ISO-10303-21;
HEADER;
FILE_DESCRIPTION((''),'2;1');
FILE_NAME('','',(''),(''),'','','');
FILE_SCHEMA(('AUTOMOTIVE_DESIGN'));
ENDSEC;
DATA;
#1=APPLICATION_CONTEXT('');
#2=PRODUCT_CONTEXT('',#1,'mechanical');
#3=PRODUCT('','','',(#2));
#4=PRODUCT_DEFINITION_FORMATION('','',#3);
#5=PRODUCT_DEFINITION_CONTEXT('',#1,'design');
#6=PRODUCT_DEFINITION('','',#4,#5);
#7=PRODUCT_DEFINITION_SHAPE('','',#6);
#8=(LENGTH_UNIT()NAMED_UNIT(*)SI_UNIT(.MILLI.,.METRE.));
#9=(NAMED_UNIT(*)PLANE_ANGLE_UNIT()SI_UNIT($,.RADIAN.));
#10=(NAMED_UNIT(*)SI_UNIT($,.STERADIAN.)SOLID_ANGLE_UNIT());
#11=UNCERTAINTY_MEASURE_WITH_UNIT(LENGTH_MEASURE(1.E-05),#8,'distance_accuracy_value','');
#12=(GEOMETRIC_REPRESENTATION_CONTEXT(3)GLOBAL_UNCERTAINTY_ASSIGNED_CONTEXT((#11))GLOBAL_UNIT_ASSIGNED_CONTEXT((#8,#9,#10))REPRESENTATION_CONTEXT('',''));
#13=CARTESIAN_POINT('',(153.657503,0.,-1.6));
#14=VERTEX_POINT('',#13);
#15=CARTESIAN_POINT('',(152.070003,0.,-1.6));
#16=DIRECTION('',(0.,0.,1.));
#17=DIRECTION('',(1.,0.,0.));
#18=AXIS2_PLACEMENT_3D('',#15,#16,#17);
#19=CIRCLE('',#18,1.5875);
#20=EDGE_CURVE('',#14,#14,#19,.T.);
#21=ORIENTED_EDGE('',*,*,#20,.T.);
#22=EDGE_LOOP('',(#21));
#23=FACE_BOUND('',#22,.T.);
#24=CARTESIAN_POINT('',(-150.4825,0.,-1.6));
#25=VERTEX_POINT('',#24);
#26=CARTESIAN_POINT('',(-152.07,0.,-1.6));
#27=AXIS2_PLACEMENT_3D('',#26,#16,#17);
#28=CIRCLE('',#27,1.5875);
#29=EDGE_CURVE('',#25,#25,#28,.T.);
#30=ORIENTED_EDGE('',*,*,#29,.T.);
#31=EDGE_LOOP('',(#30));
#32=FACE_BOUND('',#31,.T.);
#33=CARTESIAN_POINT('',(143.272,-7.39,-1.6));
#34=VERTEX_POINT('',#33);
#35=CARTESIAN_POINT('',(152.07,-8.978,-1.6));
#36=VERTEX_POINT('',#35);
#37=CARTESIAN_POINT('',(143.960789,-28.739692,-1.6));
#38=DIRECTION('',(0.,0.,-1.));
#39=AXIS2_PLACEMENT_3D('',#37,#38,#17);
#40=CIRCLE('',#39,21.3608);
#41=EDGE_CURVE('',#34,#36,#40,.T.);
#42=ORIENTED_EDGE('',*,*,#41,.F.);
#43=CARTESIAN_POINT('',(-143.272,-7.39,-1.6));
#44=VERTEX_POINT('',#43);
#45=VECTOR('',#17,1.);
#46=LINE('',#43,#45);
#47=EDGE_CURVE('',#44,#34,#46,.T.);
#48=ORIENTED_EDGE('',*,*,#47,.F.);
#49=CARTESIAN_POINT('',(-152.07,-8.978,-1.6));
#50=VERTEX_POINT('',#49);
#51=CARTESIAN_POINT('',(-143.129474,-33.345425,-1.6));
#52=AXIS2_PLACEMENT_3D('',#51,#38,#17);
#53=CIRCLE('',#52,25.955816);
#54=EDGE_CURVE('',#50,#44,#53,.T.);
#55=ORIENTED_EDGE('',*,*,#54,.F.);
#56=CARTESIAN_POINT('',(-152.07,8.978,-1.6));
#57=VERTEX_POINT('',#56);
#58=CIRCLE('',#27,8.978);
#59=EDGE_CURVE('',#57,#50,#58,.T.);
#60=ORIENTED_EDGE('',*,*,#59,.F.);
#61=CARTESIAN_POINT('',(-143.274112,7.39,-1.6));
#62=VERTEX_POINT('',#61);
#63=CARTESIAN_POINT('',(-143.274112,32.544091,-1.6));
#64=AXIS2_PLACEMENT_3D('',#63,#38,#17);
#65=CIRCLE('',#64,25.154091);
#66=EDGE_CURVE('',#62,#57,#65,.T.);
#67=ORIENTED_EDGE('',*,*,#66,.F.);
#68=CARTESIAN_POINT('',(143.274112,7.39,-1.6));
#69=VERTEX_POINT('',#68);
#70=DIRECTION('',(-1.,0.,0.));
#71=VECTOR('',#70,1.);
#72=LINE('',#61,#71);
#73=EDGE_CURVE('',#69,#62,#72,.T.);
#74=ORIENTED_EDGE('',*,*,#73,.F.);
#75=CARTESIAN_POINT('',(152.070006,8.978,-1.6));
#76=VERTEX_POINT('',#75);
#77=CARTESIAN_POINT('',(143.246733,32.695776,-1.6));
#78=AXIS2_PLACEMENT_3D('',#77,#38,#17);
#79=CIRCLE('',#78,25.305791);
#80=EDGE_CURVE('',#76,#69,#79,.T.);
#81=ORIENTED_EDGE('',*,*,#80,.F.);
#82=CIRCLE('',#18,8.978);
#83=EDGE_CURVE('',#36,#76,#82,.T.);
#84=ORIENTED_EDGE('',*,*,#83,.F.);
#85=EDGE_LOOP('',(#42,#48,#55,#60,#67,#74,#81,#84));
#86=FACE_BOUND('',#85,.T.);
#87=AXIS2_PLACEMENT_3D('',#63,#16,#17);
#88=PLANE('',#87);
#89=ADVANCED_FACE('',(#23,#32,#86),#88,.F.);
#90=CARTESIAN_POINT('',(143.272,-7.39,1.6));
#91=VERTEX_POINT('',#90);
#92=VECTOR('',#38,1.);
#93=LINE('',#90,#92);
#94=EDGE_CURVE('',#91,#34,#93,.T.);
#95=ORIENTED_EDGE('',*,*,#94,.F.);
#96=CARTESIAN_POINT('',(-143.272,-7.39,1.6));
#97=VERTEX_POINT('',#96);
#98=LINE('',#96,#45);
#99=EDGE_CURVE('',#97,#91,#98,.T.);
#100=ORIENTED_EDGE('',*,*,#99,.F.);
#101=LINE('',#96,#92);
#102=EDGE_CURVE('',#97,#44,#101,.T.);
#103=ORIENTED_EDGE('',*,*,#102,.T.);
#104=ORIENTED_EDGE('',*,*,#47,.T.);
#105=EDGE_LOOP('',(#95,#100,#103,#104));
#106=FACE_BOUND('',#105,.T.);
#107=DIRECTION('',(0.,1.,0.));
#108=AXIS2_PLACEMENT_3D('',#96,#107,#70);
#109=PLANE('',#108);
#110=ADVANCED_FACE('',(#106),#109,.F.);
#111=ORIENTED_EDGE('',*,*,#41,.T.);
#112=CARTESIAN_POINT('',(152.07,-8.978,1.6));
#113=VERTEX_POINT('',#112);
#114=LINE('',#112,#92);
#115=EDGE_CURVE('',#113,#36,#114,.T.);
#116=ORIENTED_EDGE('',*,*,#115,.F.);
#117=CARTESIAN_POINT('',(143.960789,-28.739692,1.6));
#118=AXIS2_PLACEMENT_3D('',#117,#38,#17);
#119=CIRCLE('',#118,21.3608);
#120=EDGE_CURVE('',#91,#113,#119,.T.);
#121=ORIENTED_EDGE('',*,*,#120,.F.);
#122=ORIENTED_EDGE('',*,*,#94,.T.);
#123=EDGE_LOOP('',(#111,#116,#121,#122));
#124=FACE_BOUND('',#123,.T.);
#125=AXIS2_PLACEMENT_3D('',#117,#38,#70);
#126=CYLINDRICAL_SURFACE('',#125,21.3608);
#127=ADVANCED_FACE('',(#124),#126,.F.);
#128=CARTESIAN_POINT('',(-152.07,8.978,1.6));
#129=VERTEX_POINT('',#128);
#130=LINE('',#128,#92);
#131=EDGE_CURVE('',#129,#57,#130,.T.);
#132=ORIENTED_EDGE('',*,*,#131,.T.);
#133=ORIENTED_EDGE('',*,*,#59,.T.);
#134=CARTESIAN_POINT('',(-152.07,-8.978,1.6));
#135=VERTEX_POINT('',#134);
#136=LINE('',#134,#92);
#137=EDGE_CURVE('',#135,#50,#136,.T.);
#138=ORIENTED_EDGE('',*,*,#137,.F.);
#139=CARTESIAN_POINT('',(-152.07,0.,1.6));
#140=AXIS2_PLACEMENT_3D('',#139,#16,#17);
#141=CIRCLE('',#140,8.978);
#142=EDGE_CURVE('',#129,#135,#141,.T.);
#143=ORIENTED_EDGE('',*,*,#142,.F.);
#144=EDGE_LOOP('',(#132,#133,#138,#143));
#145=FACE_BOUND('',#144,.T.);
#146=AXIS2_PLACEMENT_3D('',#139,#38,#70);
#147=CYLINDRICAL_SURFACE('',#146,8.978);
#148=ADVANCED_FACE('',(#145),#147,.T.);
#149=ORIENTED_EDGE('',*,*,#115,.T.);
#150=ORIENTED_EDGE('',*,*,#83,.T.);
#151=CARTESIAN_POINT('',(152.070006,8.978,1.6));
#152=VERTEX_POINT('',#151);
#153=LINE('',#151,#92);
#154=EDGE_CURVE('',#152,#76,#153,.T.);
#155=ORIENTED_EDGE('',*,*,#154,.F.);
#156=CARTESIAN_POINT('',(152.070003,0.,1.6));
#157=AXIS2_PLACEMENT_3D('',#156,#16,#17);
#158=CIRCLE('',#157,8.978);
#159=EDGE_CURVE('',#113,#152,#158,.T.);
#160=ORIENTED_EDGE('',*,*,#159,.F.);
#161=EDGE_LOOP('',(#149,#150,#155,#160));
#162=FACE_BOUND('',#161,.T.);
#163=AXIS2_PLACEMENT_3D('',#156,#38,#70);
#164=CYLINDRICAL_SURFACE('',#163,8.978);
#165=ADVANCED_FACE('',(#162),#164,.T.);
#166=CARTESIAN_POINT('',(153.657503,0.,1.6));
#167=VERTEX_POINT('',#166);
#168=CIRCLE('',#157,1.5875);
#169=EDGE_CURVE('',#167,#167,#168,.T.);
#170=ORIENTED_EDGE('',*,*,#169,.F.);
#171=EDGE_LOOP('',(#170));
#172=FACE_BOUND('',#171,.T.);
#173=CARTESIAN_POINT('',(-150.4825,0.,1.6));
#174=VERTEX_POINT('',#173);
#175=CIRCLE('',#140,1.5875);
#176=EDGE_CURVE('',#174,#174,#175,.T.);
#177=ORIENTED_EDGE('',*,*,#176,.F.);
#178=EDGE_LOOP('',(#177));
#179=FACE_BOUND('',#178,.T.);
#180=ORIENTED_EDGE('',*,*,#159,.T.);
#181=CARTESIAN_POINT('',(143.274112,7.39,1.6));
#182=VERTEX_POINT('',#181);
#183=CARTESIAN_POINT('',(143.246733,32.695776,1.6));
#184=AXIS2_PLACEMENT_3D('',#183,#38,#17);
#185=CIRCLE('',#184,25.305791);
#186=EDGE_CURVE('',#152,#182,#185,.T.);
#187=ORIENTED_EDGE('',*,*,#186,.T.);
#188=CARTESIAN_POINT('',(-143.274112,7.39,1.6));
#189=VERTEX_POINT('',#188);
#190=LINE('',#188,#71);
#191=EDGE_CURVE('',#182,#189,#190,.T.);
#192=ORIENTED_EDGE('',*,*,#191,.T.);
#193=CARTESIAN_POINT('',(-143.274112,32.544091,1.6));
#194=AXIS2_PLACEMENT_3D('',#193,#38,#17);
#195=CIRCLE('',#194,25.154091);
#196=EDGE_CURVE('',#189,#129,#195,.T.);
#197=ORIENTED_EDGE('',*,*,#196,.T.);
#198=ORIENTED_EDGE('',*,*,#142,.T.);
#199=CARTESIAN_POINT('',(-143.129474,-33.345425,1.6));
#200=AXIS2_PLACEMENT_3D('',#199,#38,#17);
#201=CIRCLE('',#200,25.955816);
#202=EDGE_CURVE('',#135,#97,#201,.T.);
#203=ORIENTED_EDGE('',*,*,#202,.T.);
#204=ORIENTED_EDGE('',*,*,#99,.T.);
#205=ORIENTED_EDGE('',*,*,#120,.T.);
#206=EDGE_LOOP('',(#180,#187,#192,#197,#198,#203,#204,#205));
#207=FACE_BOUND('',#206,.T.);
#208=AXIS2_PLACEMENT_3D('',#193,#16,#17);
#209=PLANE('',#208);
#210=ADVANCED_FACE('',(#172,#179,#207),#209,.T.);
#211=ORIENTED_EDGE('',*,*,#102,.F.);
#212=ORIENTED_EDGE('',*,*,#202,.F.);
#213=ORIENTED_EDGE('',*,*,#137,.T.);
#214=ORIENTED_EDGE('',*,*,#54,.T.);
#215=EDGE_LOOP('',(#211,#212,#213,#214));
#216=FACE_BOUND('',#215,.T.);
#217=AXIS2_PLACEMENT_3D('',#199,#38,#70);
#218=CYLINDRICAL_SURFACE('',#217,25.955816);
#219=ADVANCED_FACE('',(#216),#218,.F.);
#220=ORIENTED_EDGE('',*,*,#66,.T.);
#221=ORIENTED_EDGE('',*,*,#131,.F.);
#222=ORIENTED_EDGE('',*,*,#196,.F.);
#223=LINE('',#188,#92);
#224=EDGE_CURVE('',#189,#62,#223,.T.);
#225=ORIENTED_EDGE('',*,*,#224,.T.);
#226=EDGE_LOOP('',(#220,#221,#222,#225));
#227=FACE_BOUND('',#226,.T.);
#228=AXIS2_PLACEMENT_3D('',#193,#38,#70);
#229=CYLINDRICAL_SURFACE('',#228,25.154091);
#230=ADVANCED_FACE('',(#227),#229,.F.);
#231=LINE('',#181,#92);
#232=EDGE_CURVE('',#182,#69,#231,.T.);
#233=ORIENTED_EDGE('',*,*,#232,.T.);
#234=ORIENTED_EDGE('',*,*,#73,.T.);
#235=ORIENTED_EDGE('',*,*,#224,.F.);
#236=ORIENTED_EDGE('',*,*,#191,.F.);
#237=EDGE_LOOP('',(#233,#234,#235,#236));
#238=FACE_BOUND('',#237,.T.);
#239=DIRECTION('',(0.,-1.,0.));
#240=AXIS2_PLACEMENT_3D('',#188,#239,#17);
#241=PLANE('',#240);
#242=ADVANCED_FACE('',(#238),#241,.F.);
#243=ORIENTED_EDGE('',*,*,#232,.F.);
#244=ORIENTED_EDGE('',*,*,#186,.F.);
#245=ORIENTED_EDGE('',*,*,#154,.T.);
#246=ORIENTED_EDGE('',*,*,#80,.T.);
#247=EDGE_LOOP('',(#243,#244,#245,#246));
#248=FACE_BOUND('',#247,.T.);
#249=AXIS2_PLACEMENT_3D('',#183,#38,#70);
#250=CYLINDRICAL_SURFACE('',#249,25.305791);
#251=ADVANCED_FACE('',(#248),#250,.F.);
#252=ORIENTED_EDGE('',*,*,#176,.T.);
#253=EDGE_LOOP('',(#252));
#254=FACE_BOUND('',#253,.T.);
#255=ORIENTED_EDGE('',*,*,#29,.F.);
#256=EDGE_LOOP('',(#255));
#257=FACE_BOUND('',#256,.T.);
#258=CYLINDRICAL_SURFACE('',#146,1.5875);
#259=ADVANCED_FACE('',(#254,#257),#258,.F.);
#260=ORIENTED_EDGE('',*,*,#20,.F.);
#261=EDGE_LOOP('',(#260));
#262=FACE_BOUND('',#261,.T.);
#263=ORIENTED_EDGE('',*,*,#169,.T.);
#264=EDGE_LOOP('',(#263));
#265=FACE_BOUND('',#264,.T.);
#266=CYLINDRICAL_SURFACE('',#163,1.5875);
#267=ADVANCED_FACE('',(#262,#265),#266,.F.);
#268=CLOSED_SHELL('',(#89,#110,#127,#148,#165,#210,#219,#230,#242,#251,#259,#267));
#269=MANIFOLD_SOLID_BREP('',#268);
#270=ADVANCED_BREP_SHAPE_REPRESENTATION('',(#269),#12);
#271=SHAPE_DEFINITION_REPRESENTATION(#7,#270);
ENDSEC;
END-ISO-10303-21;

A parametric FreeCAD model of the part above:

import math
import FreeCAD as App
import Part
import Sketcher

V = App.Vector
Q = App.Units.Quantity

doc = App.newDocument("Part")
body = doc.addObject("PartDesign::Body", "Body")

sketch1 = doc.addObject("Sketcher::SketchObject", "Sketch")
body.addObject(sketch1)
sketch1.AttachmentSupport = (doc.XY_Plane, [""])
sketch1.MapMode = "FlatFace"
sketch1.addGeometry([
    Part.LineSegment(V(143.274112, 7.39, 0), V(-143.274112, 7.39, 0)),
    Part.ArcOfCircle(Part.Circle(V(-143.274112, 32.544091, 0), V(0, 0, 1), 25.154091), math.radians(-110.467758), math.radians(-90)),
    Part.ArcOfCircle(Part.Circle(V(-152.07, 0, 0), V(0, 0, 1), 8.978), math.radians(90), math.radians(270)),
    Part.ArcOfCircle(Part.Circle(V(-143.129474, -33.345425, 0), V(0, 0, 1), 25.955816), math.radians(90.314618), math.radians(110.148331)),
    Part.LineSegment(V(-143.272, -7.39, 0), V(143.272, -7.39, 0)),
    Part.ArcOfCircle(Part.Circle(V(143.960789, -28.739692, 0), V(0, 0, 1), 21.3608), math.radians(67.689203), math.radians(91.847849)),
    Part.ArcOfCircle(Part.Circle(V(152.070003, 0, 0), V(0, 0, 1), 8.978), math.radians(-90.00002), math.radians(89.99998)),
    Part.ArcOfCircle(Part.Circle(V(143.246733, 32.695776, 0), V(0, 0, 1), 25.305791), math.radians(-89.938011), math.radians(-69.594246)),
    Part.Circle(V(152.070003, 0, 0), V(0, 0, 1), 1.5875),
    Part.Circle(V(-152.07, 0, 0), V(0, 0, 1), 1.5875),
], False)
sketch1.addConstraint([
    Sketcher.Constraint("Tangent", 0, 2, 1, 2),
    Sketcher.Constraint("Coincident", 1, 1, 2, 1),
    Sketcher.Constraint("Coincident", 2, 2, 3, 2),
    Sketcher.Constraint("Coincident", 3, 1, 4, 1),
    Sketcher.Constraint("Coincident", 4, 2, 5, 2),
    Sketcher.Constraint("Coincident", 5, 1, 6, 1),
    Sketcher.Constraint("Coincident", 6, 2, 7, 2),
    Sketcher.Constraint("Coincident", 7, 1, 0, 1),
    Sketcher.Constraint("Horizontal", 0),
    Sketcher.Constraint("Horizontal", 4),
    Sketcher.Constraint("Coincident", 8, 3, 6, 3),
    Sketcher.Constraint("Coincident", 9, 3, 2, 3),
    Sketcher.Constraint("Equal", 2, 6),
    Sketcher.Constraint("Equal", 8, 9),
    Sketcher.Constraint("Symmetric", 2, 3, 6, 3, -1, 1),
    Sketcher.Constraint("Symmetric", 2, 2, 5, 1, -2),
    Sketcher.Constraint("Vertical", 9, 3, 1, 1),
    Sketcher.Constraint("Vertical", 1, 1, 2, 2),
    Sketcher.Constraint("Diameter", 8, Q("3.175 mm")),
    Sketcher.Constraint("Radius", 2, Q("8.978 mm")),
    Sketcher.Constraint("Radius", 5, Q("21.3608 mm")),
    Sketcher.Constraint("DistanceX", 4, 1, 4, 2, Q("286.544 mm")),
    Sketcher.Constraint("DistanceX", 2, 3, -1, 1, Q("152.07 mm")),
    Sketcher.Constraint("DistanceY", -1, 1, 0, 2, Q("7.39 mm")),
    Sketcher.Constraint("DistanceY", 3, 1, -1, 1, Q("7.39 mm")),
    Sketcher.Constraint("Radius", 1, Q("25.154091 mm")),
    Sketcher.Constraint("Radius", 7, Q("25.305791 mm")),
    Sketcher.Constraint("DistanceX", 3, 1, -1, 1, Q("143.272 mm")),
    Sketcher.Constraint("Radius", 3, Q("25.955816 mm")),
    Sketcher.Constraint("DistanceX", 0, 2, 0, 1, Q("286.548223 mm")),
    Sketcher.Constraint("DistanceX", 7, 3, 6, 3, Q("8.82327 mm")),
])
pad1 = doc.addObject("PartDesign::Pad", "Pad")
body.addObject(pad1)
pad1.Profile = sketch1
pad1.Length = 3.2
pad1.Midplane = True

doc.recompute()
